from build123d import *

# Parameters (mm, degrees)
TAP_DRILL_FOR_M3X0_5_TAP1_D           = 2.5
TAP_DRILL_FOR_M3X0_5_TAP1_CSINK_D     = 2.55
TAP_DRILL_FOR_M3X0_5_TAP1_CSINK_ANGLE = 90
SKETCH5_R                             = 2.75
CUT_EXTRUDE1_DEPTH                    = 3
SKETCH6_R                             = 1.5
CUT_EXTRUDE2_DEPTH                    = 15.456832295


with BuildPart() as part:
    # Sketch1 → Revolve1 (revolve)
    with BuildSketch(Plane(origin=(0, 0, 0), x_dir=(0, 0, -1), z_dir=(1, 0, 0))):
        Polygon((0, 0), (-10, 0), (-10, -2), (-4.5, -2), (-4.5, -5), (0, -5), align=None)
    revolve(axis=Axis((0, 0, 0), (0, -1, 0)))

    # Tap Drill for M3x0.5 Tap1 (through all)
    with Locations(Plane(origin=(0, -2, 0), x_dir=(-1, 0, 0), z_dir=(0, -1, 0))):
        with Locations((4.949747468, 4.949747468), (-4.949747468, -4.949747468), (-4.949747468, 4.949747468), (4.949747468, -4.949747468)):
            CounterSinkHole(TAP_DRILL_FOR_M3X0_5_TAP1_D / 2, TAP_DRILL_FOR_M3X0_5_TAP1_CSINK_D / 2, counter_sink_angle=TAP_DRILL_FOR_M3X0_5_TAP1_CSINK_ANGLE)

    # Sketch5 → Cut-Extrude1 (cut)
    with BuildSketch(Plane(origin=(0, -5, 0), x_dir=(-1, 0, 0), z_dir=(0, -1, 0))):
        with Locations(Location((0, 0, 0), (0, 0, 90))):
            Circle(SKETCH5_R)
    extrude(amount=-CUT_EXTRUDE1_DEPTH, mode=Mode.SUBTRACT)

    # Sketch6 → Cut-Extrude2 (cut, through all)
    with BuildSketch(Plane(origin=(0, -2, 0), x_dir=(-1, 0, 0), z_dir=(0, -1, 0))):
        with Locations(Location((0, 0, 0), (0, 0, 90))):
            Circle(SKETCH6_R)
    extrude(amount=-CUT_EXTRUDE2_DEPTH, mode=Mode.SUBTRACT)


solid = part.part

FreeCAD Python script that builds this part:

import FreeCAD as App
import Part
import Sketcher


def add_polygon(sketch, points):
    """Adds a closed chain of lines whose ends are joined by coincident constraints."""
    first, n = sketch.GeometryCount, len(points)
    for a, b in zip(points, points[1:] + points[:1]):
        sketch.addGeometry(Part.LineSegment(App.Vector(*a, 0), App.Vector(*b, 0)), False)
    for i in range(n):
        sketch.addConstraint(Sketcher.Constraint("Coincident", first + i, 2, first + (i + 1) % n, 1))

doc = App.newDocument("Part")
body = doc.addObject("PartDesign::Body", "Body")

# Sketch on YZ plane
sketch1 = body.newObject("Sketcher::SketchObject", "Sketch")
sketch1.AttachmentSupport = (doc.getObject("YZ_Plane"), [""])
sketch1.MapMode = "FlatFace"
add_polygon(sketch1, [(0, 0), (0, 10), (-2, 10), (-2, 4.5), (-5, 4.5), (-5, 0)])  # lines 0-5
sketch1.addConstraint(Sketcher.Constraint("Vertical", 0))
sketch1.addConstraint(Sketcher.Constraint("Horizontal", 1))
sketch1.addConstraint(Sketcher.Constraint("Vertical", 2))
sketch1.addConstraint(Sketcher.Constraint("Horizontal", 3))
sketch1.addConstraint(Sketcher.Constraint("Vertical", 4))
sketch1.addConstraint(Sketcher.Constraint("Horizontal", 5))
sketch1.addConstraint(Sketcher.Constraint("Coincident", 5, 2, -1, 1))
sketch1.addConstraint(Sketcher.Constraint("DistanceX", 1, 2, 1, 1, 2.0))
sketch1.addConstraint(Sketcher.Constraint("DistanceX", 3, 2, 3, 1, 3.0))
sketch1.addConstraint(Sketcher.Constraint("DistanceY", 0, 1, 0, 2, 10.0))
sketch1.addConstraint(Sketcher.Constraint("DistanceY", 2, 2, 2, 1, 5.5))
revolution = body.newObject("PartDesign::Revolution", "Revolution")
revolution.Profile = sketch1
revolution.ReferenceAxis = (sketch1, ["H_Axis"])
revolution.Angle = 360

# Sketch on XZ plane
sketch2 = body.newObject("Sketcher::SketchObject", "Sketch001")
sketch2.AttachmentSupport = (doc.getObject("XZ_Plane"), [""])
sketch2.MapMode = "FlatFace"
sketch2.AttachmentOffset = App.Placement(App.Vector(0, 0, 2), App.Rotation())
sketch2.addGeometry(Part.Circle(App.Vector(-4.9, -4.9, 0), App.Vector(0, 0, 1), 1.2), False)
sketch2.addGeometry(Part.Circle(App.Vector(4.9, 4.9, 0), App.Vector(0, 0, 1), 1.2), False)
sketch2.addGeometry(Part.Circle(App.Vector(4.9, -4.9, 0), App.Vector(0, 0, 1), 1.2), False)
sketch2.addGeometry(Part.Circle(App.Vector(-4.9, 4.9, 0), App.Vector(0, 0, 1), 1.2), False)
sketch2.addConstraint(Sketcher.Constraint("Equal", 0, 1))
sketch2.addConstraint(Sketcher.Constraint("Equal", 1, 2))
sketch2.addConstraint(Sketcher.Constraint("Equal", 2, 3))
sketch2.addConstraint(Sketcher.Constraint("Symmetric", 0, 3, 1, 3, -1, 1))
sketch2.addConstraint(Sketcher.Constraint("Symmetric", 2, 3, 3, 3, -1, 1))
sketch2.addConstraint(Sketcher.Constraint("Symmetric", 0, 3, 2, 3, -2))
sketch2.addConstraint(Sketcher.Constraint("Diameter", 0, 2.5))
sketch2.addConstraint(Sketcher.Constraint("DistanceX", 0, 3, -1, 1, 4.949747))
sketch2.addConstraint(Sketcher.Constraint("DistanceY", 0, 3, -1, 1, 4.949747))
doc.recompute()
hole = body.newObject("PartDesign::Hole", "Hole")
hole.Profile = sketch2
hole.ThreadType = "None"
hole.Diameter = 2.5
hole.DepthType = "ThroughAll"
hole.HoleCutType = "Countersink"
hole.HoleCutDiameter = 2.55
hole.HoleCutCountersinkAngle = 90

# Sketch on XZ plane
sketch3 = body.newObject("Sketcher::SketchObject", "Sketch002")
sketch3.AttachmentSupport = (doc.getObject("XZ_Plane"), [""])
sketch3.MapMode = "FlatFace"
sketch3.AttachmentOffset = App.Placement(App.Vector(0, 0, 5), App.Rotation())
sketch3.addGeometry(Part.Circle(App.Vector(0, 0, 0), App.Vector(0, 0, 1), 2.8), False)
sketch3.addConstraint(Sketcher.Constraint("Coincident", 0, 3, -1, 1))
sketch3.addConstraint(Sketcher.Constraint("Diameter", 0, 5.5))
pocket1 = body.newObject("PartDesign::Pocket", "Pocket")
pocket1.Profile = sketch3
pocket1.Length = 3

# Sketch on XZ plane
sketch4 = body.newObject("Sketcher::SketchObject", "Sketch003")
sketch4.AttachmentSupport = (doc.getObject("XZ_Plane"), [""])
sketch4.MapMode = "FlatFace"
sketch4.AttachmentOffset = App.Placement(App.Vector(0, 0, 2), App.Rotation())
sketch4.addGeometry(Part.Circle(App.Vector(0, 0, 0), App.Vector(0, 0, 1), 1.5), False)
sketch4.addConstraint(Sketcher.Constraint("Coincident", 0, 3, -1, 1))
sketch4.addConstraint(Sketcher.Constraint("Diameter", 0, 3.0))
pocket2 = body.newObject("PartDesign::Pocket", "Pocket001")
pocket2.Profile = sketch4
pocket2.Type = "ThroughAll"

doc.recompute()
